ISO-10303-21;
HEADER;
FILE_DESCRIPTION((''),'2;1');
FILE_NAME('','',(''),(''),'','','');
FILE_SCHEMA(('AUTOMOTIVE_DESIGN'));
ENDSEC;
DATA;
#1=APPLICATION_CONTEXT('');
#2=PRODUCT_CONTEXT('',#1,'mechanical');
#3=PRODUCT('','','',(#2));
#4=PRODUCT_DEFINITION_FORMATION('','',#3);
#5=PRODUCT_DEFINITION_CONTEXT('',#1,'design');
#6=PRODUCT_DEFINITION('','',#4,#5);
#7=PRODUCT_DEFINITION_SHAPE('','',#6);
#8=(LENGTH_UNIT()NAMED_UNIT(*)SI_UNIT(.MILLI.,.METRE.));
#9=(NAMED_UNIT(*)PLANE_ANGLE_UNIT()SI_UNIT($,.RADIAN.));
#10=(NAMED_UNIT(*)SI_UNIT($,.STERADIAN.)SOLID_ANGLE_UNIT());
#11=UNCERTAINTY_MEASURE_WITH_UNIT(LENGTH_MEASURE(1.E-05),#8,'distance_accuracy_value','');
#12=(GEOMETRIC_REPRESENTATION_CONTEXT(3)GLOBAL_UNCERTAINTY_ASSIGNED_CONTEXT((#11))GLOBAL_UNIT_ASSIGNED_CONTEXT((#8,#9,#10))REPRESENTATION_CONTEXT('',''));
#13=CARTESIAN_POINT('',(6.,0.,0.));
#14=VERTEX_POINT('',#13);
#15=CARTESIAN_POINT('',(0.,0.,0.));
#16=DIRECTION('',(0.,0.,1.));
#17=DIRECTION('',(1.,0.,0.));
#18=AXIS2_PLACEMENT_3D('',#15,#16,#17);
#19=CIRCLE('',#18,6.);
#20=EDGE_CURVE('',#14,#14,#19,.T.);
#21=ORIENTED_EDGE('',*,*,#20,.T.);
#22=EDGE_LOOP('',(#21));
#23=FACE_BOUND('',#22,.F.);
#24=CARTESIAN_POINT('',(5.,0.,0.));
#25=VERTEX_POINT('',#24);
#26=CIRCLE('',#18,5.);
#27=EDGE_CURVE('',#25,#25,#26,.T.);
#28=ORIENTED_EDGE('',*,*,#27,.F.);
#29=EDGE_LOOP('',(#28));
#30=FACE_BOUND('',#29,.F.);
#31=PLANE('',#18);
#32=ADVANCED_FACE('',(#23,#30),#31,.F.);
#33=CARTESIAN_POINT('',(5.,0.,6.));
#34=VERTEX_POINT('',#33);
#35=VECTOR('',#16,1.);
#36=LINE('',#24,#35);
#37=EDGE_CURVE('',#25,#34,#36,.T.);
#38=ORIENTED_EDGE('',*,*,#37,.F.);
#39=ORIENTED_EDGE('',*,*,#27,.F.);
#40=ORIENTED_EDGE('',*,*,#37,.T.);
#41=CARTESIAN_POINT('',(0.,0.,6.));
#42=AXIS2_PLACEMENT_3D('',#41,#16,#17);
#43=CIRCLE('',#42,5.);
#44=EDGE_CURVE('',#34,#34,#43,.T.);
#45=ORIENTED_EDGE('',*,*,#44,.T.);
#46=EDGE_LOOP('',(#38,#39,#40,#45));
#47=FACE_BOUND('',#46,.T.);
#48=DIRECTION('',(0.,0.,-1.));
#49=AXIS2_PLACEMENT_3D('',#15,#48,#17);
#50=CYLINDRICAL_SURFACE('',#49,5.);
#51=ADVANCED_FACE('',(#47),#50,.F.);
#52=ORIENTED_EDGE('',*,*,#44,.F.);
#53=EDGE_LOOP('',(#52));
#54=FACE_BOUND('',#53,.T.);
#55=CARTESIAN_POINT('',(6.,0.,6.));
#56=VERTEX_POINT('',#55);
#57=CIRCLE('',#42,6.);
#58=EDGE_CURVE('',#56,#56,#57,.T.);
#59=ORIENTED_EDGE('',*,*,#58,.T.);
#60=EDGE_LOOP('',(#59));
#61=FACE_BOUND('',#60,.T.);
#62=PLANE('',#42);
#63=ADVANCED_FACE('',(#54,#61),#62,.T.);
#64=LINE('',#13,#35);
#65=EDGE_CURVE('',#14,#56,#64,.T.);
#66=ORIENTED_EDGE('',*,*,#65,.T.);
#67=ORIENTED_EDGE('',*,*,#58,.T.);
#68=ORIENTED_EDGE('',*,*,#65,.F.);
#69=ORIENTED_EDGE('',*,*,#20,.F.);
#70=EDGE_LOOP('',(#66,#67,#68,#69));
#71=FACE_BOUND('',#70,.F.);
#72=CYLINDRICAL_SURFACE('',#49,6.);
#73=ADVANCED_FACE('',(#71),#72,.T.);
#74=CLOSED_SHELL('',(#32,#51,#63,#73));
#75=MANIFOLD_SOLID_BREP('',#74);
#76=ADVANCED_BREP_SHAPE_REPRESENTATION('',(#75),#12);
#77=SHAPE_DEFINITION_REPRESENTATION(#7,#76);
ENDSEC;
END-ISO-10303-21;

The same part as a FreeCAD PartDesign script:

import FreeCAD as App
import Part
import Sketcher

V = App.Vector
Q = App.Units.Quantity

doc = App.newDocument("Part")
body = doc.addObject("PartDesign::Body", "Body")

sketch1 = doc.addObject("Sketcher::SketchObject", "Sketch")
body.addObject(sketch1)
sketch1.AttachmentSupport = (doc.XY_Plane, [""])
sketch1.MapMode = "FlatFace"
sketch1.addGeometry([
    Part.Circle(V(0, 0, 0), V(0, 0, 1), 6),
    Part.Circle(V(0, 0, 0), V(0, 0, 1), 5),
], False)
sketch1.addConstraint([
    Sketcher.Constraint("Coincident", 0, 3, -1, 1),
    Sketcher.Constraint("Coincident", 1, 3, -1, 1),
    Sketcher.Constraint("Diameter", 0, Q("12 mm")),
    Sketcher.Constraint("Diameter", 1, Q("10 mm")),
])
pad1 = doc.addObject("PartDesign::Pad", "Pad")
body.addObject(pad1)
pad1.Profile = sketch1
pad1.Length = 6

doc.recompute()
